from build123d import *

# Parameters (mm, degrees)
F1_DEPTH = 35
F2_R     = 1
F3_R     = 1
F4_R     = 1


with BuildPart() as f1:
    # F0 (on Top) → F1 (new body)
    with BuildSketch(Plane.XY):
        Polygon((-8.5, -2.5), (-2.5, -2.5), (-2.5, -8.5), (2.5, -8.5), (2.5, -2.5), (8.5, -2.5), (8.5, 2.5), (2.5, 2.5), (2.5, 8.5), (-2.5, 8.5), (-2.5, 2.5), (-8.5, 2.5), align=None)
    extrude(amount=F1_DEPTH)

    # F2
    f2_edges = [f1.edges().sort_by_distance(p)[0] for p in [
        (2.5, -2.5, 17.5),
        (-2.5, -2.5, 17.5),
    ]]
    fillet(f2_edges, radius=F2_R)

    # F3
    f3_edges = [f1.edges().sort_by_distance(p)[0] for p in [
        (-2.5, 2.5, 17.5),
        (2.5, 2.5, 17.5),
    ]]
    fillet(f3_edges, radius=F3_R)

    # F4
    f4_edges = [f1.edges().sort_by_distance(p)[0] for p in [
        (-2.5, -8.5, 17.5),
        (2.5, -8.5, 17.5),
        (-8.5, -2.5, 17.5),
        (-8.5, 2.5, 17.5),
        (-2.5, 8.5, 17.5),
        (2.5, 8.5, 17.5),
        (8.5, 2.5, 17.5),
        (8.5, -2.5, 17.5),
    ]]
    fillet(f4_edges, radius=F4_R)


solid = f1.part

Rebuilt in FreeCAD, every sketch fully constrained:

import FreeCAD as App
import Part
import Sketcher
from FreeCAD import Vector
Q = App.Units.Quantity


def edges_at(feature, points):
    """Names of the edges that pass closest to the given points."""
    edges = feature.Shape.Edges
    near = lambda p: min(range(len(edges)), key=lambda i: edges[i].distToShape(Part.Vertex(*p))[0])
    return sorted({f"Edge{near(p) + 1}" for p in points})

doc = App.newDocument("Part")
body = doc.addObject("PartDesign::Body", "Body")

# Sketch on XY plane
sketch1 = body.newObject("Sketcher::SketchObject", "Sketch")
sketch1.AttachmentSupport = (doc.getObject("XY_Plane"), [""])
sketch1.MapMode = "FlatFace"
sketch1.addGeometry([
    Part.LineSegment(Vector(-8.5, -2.5, 0), Vector(-2.5, -2.5, 0)),  # 0
    Part.LineSegment(Vector(-2.5, -2.5, 0), Vector(-2.5, -8.5, 0)),  # 1
    Part.LineSegment(Vector(-2.5, -8.5, 0), Vector(2.5, -8.5, 0)),  # 2
    Part.LineSegment(Vector(2.5, -8.5, 0), Vector(2.5, -2.5, 0)),  # 3
    Part.LineSegment(Vector(2.5, -2.5, 0), Vector(8.5, -2.5, 0)),  # 4
    Part.LineSegment(Vector(8.5, -2.5, 0), Vector(8.5, 2.5, 0)),  # 5
    Part.LineSegment(Vector(8.5, 2.5, 0), Vector(2.5, 2.5, 0)),  # 6
    Part.LineSegment(Vector(2.5, 2.5, 0), Vector(2.5, 8.5, 0)),  # 7
    Part.LineSegment(Vector(2.5, 8.5, 0), Vector(-2.5, 8.5, 0)),  # 8
    Part.LineSegment(Vector(-2.5, 8.5, 0), Vector(-2.5, 2.5, 0)),  # 9
    Part.LineSegment(Vector(-2.5, 2.5, 0), Vector(-8.5, 2.5, 0)),  # 10
    Part.LineSegment(Vector(-8.5, 2.5, 0), Vector(-8.5, -2.5, 0)),  # 11
], False)
sketch1.addConstraint([
    Sketcher.Constraint("Coincident", 0, 2, 1, 1),
    Sketcher.Constraint("Coincident", 1, 2, 2, 1),
    Sketcher.Constraint("Coincident", 2, 2, 3, 1),
    Sketcher.Constraint("Coincident", 3, 2, 4, 1),
    Sketcher.Constraint("Coincident", 4, 2, 5, 1),
    Sketcher.Constraint("Coincident", 5, 2, 6, 1),
    Sketcher.Constraint("Coincident", 6, 2, 7, 1),
    Sketcher.Constraint("Coincident", 7, 2, 8, 1),
    Sketcher.Constraint("Coincident", 8, 2, 9, 1),
    Sketcher.Constraint("Coincident", 9, 2, 10, 1),
    Sketcher.Constraint("Coincident", 10, 2, 11, 1),
    Sketcher.Constraint("Coincident", 11, 2, 0, 1),
    Sketcher.Constraint("Horizontal", 0),
    Sketcher.Constraint("Vertical", 1),
    Sketcher.Constraint("Horizontal", 2),
    Sketcher.Constraint("Vertical", 3),
    Sketcher.Constraint("Horizontal", 4),
    Sketcher.Constraint("Vertical", 5),
    Sketcher.Constraint("Horizontal", 6),
    Sketcher.Constraint("Vertical", 7),
    Sketcher.Constraint("Horizontal", 8),
    Sketcher.Constraint("Vertical", 9),
    Sketcher.Constraint("Horizontal", 10),
    Sketcher.Constraint("Vertical", 11),
    Sketcher.Constraint("Symmetric", 0, 2, 6, 2, -1, 1),
    Sketcher.Constraint("Symmetric", 2, 2, 8, 2, -1, 1),
    Sketcher.Constraint("Symmetric", 4, 2, 10, 2, -1, 1),
    Sketcher.Constraint("Symmetric", 0, 2, 3, 2, -2),
    Sketcher.Constraint("Equal", 10, 1),
    Sketcher.Constraint("Equal", 8, 5),
    Sketcher.Constraint("DistanceX", 0, 1, 0, 2, Q("6 mm")),
    Sketcher.Constraint("DistanceX", 2, 1, 2, 2, Q("5 mm")),
])
pad1 = body.newObject("PartDesign::Pad", "Pad")
pad1.Profile = sketch1
pad1.Length = 35
doc.recompute()

fillet = body.newObject("PartDesign::Fillet", "Fillet")
fillet.Base = (pad1, edges_at(pad1, [(2.5, -2.5, 17.5), (-2.5, -2.5, 17.5)]))
fillet.Radius = 1
doc.recompute()

fillet2 = body.newObject("PartDesign::Fillet", "Fillet001")
fillet2.Base = (fillet, edges_at(fillet, [(-2.5, 2.5, 17.5), (2.5, 2.5, 17.5)]))
fillet2.Radius = 1
doc.recompute()

fillet3 = body.newObject("PartDesign::Fillet", "Fillet002")
fillet3.Base = (fillet2, edges_at(fillet2, [
    (-2.5, -8.5, 17.5),
    (2.5, -8.5, 17.5),
    (-8.5, -2.5, 17.5),
    (-8.5, 2.5, 17.5),
    (-2.5, 8.5, 17.5),
    (2.5, 8.5, 17.5),
    (8.5, 2.5, 17.5),
    (8.5, -2.5, 17.5),
]))
fillet3.Radius = 1

doc.recompute()
